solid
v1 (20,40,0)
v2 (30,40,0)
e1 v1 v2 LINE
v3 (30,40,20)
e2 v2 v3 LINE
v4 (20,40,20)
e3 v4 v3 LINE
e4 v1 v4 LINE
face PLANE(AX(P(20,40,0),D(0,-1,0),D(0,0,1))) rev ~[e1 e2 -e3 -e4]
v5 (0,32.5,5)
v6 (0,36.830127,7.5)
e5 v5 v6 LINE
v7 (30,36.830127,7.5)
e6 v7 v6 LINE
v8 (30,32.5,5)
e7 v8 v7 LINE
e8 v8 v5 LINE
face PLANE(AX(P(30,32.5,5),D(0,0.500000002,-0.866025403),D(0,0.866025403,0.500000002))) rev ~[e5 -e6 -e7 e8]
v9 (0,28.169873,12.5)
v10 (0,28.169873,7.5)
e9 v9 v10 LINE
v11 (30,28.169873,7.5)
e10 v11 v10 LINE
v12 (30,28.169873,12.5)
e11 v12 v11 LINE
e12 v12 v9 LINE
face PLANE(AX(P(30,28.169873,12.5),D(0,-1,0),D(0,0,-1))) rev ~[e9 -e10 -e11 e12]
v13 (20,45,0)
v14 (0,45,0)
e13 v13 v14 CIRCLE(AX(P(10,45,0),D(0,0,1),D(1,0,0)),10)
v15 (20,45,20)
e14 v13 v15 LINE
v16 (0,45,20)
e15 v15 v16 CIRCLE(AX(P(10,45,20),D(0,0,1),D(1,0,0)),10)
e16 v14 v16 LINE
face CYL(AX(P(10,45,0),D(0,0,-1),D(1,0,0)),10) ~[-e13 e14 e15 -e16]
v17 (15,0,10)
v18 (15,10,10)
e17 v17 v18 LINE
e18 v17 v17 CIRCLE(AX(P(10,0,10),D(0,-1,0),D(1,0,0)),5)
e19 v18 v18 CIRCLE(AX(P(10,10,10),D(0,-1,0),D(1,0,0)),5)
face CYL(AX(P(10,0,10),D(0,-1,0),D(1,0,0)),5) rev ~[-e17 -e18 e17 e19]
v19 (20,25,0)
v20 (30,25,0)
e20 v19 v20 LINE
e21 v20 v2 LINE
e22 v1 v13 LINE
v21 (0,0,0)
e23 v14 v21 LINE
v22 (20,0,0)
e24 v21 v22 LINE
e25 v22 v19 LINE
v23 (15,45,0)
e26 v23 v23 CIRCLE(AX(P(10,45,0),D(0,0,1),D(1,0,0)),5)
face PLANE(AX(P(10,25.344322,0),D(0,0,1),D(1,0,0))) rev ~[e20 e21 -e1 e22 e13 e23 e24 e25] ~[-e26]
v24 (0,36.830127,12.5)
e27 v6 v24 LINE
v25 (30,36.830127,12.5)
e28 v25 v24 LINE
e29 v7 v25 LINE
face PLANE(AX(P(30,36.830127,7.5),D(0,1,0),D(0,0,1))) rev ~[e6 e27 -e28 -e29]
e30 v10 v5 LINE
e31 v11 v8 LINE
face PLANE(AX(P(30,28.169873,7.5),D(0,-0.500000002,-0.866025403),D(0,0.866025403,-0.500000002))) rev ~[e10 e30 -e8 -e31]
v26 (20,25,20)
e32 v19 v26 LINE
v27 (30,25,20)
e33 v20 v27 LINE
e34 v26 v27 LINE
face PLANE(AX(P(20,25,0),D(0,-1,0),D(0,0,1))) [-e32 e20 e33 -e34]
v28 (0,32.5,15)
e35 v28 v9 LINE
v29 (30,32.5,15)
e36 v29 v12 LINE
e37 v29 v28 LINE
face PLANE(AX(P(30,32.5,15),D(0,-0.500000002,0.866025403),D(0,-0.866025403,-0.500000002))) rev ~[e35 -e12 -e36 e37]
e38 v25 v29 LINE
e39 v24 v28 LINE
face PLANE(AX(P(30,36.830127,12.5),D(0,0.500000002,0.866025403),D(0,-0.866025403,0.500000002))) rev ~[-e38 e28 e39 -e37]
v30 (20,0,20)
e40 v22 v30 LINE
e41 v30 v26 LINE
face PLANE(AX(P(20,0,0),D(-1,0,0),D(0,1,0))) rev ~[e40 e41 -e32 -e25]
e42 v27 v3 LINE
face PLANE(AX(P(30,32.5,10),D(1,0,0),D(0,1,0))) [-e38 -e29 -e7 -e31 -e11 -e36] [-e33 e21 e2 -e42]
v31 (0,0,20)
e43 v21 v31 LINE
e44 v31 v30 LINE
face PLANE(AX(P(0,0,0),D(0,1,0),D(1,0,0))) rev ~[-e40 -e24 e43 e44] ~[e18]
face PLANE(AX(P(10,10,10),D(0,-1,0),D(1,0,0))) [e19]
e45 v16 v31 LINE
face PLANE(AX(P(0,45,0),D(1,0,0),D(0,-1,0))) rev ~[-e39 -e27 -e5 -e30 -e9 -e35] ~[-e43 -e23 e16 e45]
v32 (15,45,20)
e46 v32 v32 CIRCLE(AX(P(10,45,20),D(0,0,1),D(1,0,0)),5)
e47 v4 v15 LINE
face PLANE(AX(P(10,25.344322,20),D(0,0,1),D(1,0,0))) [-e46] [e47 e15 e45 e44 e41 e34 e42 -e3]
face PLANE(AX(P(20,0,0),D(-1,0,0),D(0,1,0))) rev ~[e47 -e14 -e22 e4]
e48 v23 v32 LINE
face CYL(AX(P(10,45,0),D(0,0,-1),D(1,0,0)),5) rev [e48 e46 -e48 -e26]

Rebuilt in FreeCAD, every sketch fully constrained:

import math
import FreeCAD as App
import Part
import Sketcher
from FreeCAD import Vector
Q = App.Units.Quantity


def add_polygon(sketch, points):
    """Adds a closed chain of lines whose ends are joined by coincident constraints."""
    first, n = sketch.GeometryCount, len(points)
    for a, b in zip(points, points[1:] + points[:1]):
        sketch.addGeometry(Part.LineSegment(App.Vector(*a, 0), App.Vector(*b, 0)), False)
    for i in range(n):
        sketch.addConstraint(Sketcher.Constraint("Coincident", first + i, 2, first + (i + 1) % n, 1))

doc = App.newDocument("Part")
body = doc.addObject("PartDesign::Body", "Body")

# Sketch on XY plane
sketch1 = body.newObject("Sketcher::SketchObject", "Sketch")
sketch1.AttachmentSupport = (doc.getObject("XY_Plane"), [""])
sketch1.MapMode = "FlatFace"
sketch1.addGeometry([
    Part.LineSegment(Vector(0, 45, 0), Vector(0, 0, 0)),  # 0
    Part.LineSegment(Vector(0, 0, 0), Vector(20, 0, 0)),  # 1
    Part.LineSegment(Vector(20, 0, 0), Vector(20, 45, 0)),  # 2
    Part.ArcOfCircle(Part.Circle(Vector(10, 45, 0), Vector(0, 0, 1), 10), math.radians(0), math.radians(180)),  # 3
    Part.Circle(Vector(10, 45, 0), Vector(0, 0, 1), 5),  # 4
], False)
sketch1.addConstraint([
    Sketcher.Constraint("Coincident", 0, 2, 1, 1),
    Sketcher.Constraint("Coincident", 1, 2, 2, 1),
    Sketcher.Constraint("Tangent", 2, 2, 3, 1),
    Sketcher.Constraint("Tangent", 3, 2, 0, 1),
    Sketcher.Constraint("Vertical", 0),
    Sketcher.Constraint("Horizontal", 1),
    Sketcher.Constraint("Vertical", 2),
    Sketcher.Constraint("Coincident", 0, 2, -1, 1),
    Sketcher.Constraint("Coincident", 4, 3, 3, 3),
    Sketcher.Constraint("Diameter", 4, 10.0),
    Sketcher.Constraint("Radius", 3, 10.0),
    Sketcher.Constraint("DistanceY", 0, 2, 0, 1, 45.0),
])
pad1 = body.newObject("PartDesign::Pad", "Pad")
pad1.Profile = sketch1
pad1.Length = 20

# Sketch on XZ plane
sketch2 = body.newObject("Sketcher::SketchObject", "Sketch001")
sketch2.AttachmentSupport = (doc.getObject("XZ_Plane"), [""])
sketch2.MapMode = "FlatFace"
sketch2.addGeometry(Part.Circle(Vector(10, 10, 0), Vector(0, 0, 1), 5), False)
sketch2.addConstraint([
    Sketcher.Constraint("Diameter", 0, 10.0),
    Sketcher.Constraint("DistanceX", -1, 1, 0, 3, 10.0),
    Sketcher.Constraint("DistanceY", -1, 1, 0, 3, 10.0),
])
pocket1 = body.newObject("PartDesign::Pocket", "Pocket")
pocket1.Profile = sketch2
pocket1.Length = 10

# Sketch on YZ plane
sketch3 = body.newObject("Sketcher::SketchObject", "Sketch002")
sketch3.AttachmentSupport = (doc.getObject("YZ_Plane"), [""])
sketch3.MapMode = "FlatFace"
sketch3.AttachmentOffset = App.Placement(Vector(0, 0, 20), App.Rotation())
add_polygon(sketch3, [(25, 20), (25, 0), (40, 0), (40, 20)])  # lines 0-3
sketch3.addConstraint([
    Sketcher.Constraint("Vertical", 0),
    Sketcher.Constraint("Horizontal", 1),
    Sketcher.Constraint("Vertical", 2),
    Sketcher.Constraint("Horizontal", 3),
    Sketcher.Constraint("PointOnObject", 0, 2, -1),
    Sketcher.Constraint("DistanceX", 1, 1, 1, 2, 15.0),
    Sketcher.Constraint("DistanceY", 0, 2, 0, 1, 20.0),
    Sketcher.Constraint("DistanceX", -1, 1, 0, 2, 25.0),
])
pad2 = body.newObject("PartDesign::Pad", "Pad001")
pad2.Profile = sketch3
pad2.Length = 10

# Sketch on YZ plane
sketch4 = body.newObject("Sketcher::SketchObject", "Sketch003")
sketch4.AttachmentSupport = (doc.getObject("YZ_Plane"), [""])
sketch4.MapMode = "FlatFace"
sketch4.AttachmentOffset = App.Placement(Vector(0, 0, 30), App.Rotation())
add_polygon(sketch4, [(36.830127, 12.5), (32.5, 15), (28.169873, 12.5), (28.169873, 7.5), (32.5, 5), (36.830127, 7.5)])  # lines 0-5
sketch4.addConstraint([
    Sketcher.Constraint("Vertical", 2),
    Sketcher.Constraint("Vertical", 5),
    Sketcher.Constraint("Parallel", 0, 3),
    Sketcher.Constraint("Parallel", 1, 4),
    Sketcher.Constraint("Horizontal", 2, 2, 4, 2),
    Sketcher.Constraint("Horizontal", 1, 2, 5, 2),
    Sketcher.Constraint("Vertical", 0, 2, 3, 2),
    Sketcher.Constraint("DistanceY", 2, 2, 2, 1, 5.0),
    Sketcher.Constraint("Angle", 0, Q("150 deg")),
    Sketcher.Constraint("Distance", 0, 5.0),
    Sketcher.Constraint("DistanceY", -1, 1, 0, 2, 15.0),
    Sketcher.Constraint("DistanceX", -1, 1, 0, 2, 32.5),
])
pocket2 = body.newObject("PartDesign::Pocket", "Pocket001")
pocket2.Profile = sketch4
pocket2.Type = "ThroughAll"

doc.recompute()
